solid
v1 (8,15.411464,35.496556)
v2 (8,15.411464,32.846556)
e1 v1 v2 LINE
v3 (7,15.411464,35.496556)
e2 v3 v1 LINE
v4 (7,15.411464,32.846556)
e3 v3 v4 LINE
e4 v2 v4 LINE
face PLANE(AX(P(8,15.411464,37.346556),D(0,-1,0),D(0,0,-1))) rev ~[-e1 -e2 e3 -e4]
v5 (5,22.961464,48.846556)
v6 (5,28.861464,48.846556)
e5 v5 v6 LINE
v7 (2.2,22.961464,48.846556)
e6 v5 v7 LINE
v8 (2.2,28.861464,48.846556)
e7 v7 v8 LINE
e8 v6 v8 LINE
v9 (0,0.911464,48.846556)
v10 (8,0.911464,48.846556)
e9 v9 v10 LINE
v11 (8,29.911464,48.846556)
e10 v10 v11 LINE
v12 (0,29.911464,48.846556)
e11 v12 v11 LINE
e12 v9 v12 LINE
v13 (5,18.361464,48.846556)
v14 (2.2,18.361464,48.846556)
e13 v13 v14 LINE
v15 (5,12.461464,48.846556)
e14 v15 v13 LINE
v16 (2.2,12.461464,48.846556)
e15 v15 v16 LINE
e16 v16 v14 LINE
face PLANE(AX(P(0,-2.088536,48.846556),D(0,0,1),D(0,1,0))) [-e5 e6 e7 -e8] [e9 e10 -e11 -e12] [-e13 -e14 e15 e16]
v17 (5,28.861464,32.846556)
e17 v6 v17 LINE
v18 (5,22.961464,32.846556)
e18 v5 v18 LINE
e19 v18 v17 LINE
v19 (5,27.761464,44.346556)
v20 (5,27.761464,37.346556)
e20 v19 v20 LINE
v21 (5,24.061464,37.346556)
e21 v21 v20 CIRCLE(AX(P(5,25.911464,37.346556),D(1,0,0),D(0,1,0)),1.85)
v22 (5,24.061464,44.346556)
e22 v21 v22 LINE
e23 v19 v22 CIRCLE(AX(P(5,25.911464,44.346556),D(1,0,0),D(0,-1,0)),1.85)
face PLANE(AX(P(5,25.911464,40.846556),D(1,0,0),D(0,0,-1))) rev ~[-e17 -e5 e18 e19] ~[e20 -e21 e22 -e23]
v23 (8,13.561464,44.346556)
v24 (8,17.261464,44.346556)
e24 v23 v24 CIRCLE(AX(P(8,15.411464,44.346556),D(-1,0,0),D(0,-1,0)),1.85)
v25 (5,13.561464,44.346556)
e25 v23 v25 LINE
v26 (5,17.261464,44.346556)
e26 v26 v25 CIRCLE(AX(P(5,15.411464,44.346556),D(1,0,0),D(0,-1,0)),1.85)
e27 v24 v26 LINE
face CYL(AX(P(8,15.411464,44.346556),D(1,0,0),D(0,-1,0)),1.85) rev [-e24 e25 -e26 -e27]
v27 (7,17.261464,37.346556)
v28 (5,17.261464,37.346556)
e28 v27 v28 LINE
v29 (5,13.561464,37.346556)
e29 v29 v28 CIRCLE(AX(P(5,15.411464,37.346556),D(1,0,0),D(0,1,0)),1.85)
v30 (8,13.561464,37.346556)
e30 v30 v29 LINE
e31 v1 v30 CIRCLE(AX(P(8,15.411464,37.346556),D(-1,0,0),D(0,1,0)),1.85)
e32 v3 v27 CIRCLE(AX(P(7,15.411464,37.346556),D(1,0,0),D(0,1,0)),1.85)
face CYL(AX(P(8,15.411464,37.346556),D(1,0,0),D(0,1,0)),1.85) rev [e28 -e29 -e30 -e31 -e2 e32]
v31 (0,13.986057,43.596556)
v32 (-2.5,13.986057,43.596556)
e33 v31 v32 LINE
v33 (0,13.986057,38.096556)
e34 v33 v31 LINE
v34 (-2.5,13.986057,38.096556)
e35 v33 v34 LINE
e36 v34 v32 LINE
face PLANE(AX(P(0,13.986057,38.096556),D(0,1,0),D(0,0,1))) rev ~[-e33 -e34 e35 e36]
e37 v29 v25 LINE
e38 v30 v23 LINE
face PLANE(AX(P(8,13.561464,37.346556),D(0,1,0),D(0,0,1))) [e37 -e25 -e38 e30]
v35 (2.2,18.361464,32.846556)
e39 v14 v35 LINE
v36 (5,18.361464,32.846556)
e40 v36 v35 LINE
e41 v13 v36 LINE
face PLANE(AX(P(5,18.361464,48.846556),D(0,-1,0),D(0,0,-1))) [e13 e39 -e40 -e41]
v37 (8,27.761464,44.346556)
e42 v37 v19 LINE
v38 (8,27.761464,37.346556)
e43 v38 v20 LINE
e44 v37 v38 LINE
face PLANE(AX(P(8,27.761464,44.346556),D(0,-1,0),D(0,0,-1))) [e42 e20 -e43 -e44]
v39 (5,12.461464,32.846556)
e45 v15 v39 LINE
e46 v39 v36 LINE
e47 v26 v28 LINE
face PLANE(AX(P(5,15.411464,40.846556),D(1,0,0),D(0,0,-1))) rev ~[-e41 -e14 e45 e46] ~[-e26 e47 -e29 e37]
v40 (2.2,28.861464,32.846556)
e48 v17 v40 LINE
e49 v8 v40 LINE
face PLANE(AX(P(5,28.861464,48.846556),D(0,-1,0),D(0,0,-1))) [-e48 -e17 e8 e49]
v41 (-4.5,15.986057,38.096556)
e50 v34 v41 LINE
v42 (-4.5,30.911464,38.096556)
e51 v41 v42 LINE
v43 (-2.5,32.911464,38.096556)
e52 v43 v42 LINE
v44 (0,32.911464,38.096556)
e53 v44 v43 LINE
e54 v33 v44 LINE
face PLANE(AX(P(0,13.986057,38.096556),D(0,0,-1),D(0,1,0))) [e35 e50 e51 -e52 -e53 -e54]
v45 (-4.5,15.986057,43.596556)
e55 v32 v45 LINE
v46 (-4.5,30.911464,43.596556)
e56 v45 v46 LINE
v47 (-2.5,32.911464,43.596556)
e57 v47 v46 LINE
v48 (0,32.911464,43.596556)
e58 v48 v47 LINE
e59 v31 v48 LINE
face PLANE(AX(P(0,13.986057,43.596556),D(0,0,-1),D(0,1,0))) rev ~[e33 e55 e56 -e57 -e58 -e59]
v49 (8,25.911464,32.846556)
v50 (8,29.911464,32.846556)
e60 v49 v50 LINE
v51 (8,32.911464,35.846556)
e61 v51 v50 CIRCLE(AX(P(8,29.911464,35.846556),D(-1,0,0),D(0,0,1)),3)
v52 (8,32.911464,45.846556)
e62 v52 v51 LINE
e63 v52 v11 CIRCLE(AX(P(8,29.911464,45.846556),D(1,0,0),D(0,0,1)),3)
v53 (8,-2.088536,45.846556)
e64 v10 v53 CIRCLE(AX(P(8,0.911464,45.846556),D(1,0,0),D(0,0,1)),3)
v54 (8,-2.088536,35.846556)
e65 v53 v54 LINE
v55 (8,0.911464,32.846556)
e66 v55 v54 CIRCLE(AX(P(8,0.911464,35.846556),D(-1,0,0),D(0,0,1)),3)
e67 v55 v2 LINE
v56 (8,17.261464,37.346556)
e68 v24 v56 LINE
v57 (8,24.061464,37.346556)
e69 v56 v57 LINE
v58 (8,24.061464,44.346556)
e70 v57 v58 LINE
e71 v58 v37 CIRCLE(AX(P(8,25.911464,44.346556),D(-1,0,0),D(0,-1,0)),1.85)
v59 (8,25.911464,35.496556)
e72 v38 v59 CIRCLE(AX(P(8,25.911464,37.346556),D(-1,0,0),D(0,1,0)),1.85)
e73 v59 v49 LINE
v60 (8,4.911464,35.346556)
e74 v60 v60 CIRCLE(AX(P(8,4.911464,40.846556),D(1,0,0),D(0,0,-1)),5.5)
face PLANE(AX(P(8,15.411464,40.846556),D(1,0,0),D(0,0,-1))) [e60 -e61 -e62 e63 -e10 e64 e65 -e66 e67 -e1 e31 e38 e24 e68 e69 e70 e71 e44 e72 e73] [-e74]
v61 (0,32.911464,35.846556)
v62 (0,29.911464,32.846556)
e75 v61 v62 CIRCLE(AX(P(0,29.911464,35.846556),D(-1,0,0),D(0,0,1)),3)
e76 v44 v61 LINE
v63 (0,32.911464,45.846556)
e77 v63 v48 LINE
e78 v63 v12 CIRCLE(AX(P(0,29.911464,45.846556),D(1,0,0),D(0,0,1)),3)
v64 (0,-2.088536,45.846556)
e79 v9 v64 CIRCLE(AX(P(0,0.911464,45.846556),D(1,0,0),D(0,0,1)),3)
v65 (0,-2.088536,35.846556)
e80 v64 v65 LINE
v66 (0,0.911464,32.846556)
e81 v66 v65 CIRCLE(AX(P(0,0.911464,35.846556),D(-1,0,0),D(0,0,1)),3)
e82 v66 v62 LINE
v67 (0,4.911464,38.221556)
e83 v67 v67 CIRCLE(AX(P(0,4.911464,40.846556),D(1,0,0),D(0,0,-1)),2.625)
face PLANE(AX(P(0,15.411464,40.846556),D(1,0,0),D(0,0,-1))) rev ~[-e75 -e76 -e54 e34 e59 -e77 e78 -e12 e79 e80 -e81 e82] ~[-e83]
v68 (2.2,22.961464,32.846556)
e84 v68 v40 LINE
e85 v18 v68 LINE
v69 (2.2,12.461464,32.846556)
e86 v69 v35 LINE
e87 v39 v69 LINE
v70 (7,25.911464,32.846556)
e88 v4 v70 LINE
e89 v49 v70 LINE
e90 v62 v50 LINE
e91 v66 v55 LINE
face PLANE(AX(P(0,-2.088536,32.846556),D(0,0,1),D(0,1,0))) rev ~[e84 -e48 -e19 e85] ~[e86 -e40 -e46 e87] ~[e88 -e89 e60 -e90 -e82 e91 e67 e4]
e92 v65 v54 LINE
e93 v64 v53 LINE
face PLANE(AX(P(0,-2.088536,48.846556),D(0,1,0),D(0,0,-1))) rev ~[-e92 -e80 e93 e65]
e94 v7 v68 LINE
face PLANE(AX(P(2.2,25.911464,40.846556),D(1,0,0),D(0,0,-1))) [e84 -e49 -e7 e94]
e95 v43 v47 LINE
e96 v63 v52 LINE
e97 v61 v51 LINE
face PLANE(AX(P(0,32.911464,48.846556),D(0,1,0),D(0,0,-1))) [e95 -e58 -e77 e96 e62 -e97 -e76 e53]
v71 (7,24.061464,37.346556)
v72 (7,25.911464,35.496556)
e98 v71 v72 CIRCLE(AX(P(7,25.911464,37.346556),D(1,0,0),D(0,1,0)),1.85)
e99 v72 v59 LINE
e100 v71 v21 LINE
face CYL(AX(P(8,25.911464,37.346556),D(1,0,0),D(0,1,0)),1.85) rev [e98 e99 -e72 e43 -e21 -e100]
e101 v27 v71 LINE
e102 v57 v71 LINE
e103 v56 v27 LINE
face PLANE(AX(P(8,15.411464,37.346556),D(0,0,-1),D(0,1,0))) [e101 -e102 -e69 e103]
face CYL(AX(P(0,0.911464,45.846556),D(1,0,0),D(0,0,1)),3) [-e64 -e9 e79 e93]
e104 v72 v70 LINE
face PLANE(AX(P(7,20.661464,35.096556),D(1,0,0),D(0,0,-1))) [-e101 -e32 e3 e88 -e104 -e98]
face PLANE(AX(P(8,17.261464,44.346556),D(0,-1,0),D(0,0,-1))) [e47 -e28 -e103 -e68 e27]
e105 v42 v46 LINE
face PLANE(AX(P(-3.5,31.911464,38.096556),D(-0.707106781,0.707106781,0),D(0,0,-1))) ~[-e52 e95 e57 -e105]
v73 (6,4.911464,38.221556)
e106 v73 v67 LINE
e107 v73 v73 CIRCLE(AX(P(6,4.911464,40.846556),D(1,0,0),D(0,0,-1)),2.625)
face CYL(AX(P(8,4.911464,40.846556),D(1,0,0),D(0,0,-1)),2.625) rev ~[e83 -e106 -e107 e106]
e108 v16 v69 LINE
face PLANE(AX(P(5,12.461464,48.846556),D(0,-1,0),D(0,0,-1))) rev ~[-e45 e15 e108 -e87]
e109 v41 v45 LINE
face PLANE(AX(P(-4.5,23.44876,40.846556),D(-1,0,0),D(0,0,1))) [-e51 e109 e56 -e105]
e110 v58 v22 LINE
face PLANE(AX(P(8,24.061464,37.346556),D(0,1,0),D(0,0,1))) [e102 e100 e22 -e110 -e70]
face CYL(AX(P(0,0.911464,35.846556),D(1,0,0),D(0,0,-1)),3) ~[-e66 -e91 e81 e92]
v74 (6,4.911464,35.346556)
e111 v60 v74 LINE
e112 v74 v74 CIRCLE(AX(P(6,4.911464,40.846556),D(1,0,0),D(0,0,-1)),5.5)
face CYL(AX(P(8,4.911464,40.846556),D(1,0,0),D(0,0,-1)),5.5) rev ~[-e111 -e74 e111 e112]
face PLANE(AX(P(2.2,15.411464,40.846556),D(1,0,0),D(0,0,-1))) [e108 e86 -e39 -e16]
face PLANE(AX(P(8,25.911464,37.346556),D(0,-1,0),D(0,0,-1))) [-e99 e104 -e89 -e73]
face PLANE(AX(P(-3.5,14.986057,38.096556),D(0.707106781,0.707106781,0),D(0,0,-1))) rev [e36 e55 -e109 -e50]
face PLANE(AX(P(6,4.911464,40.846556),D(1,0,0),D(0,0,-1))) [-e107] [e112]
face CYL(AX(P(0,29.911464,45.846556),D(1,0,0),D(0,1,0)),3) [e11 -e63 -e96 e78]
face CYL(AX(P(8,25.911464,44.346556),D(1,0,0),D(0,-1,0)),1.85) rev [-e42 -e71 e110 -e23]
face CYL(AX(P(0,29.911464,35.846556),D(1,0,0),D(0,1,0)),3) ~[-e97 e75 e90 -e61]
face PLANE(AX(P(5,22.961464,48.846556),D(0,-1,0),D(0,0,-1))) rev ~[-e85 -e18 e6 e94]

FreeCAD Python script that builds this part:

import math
import FreeCAD as App
import Part
import Sketcher

V = App.Vector


def edges_at(feature, points):
    """Names of the edges that pass closest to the given points."""
    edges = feature.Shape.Edges
    near = lambda p: min(range(len(edges)), key=lambda i: edges[i].distToShape(Part.Vertex(*p))[0])
    return sorted({f"Edge{near(p) + 1}" for p in points})


def add_polygon(sketch, points):
    """Adds a closed chain of lines whose ends are joined by coincident constraints."""
    first, n = sketch.GeometryCount, len(points)
    for a, b in zip(points, points[1:] + points[:1]):
        sketch.addGeometry(Part.LineSegment(App.Vector(*a, 0), App.Vector(*b, 0)), False)
    for i in range(n):
        sketch.addConstraint(Sketcher.Constraint("Coincident", first + i, 2, first + (i + 1) % n, 1))

doc = App.newDocument("Part")
body = doc.addObject("PartDesign::Body", "Body")

sketch1 = doc.addObject("Sketcher::SketchObject", "Sketch")
body.addObject(sketch1)
sketch1.AttachmentSupport = (doc.YZ_Plane, [""])
sketch1.MapMode = "FlatFace"
add_polygon(sketch1, [(33, 49), (-2, 49), (-2, 33), (33, 33)])
sketch1.addConstraint(Sketcher.Constraint("Horizontal", 0))
sketch1.addConstraint(Sketcher.Constraint("Vertical", 1))
sketch1.addConstraint(Sketcher.Constraint("Horizontal", 2))
sketch1.addConstraint(Sketcher.Constraint("Vertical", 3))
sketch1.addConstraint(Sketcher.Constraint("DistanceX", 0, 2, 0, 1, 35.0))
sketch1.addConstraint(Sketcher.Constraint("DistanceY", 1, 2, 1, 1, 16.0))
sketch1.addConstraint(Sketcher.Constraint("DistanceX", 0, 2, -1, 1, 2.088536))
sketch1.addConstraint(Sketcher.Constraint("DistanceY", -1, 1, 0, 2, 48.846556))
pad1 = doc.addObject("PartDesign::Pad", "Pad")
body.addObject(pad1)
pad1.Profile = sketch1
pad1.Length = 8

sketch2 = doc.addObject("Sketcher::SketchObject", "Sketch001")
body.addObject(sketch2)
sketch2.AttachmentSupport = (doc.YZ_Plane, [""])
sketch2.MapMode = "FlatFace"
add_polygon(sketch2, [(33, 38), (14, 38), (14, 44), (33, 44)])
sketch2.addConstraint(Sketcher.Constraint("Horizontal", 0))
sketch2.addConstraint(Sketcher.Constraint("Vertical", 1))
sketch2.addConstraint(Sketcher.Constraint("Horizontal", 2))
sketch2.addConstraint(Sketcher.Constraint("Vertical", 3))
sketch2.addConstraint(Sketcher.Constraint("DistanceY", 1, 1, 1, 2, 5.5))
sketch2.addConstraint(Sketcher.Constraint("DistanceX", 0, 2, 0, 1, 18.925407))
sketch2.addConstraint(Sketcher.Constraint("DistanceX", -1, 1, 0, 2, 13.986057))
sketch2.addConstraint(Sketcher.Constraint("DistanceY", -1, 1, 0, 2, 38.096556))
pad2 = doc.addObject("PartDesign::Pad", "Pad001")
body.addObject(pad2)
pad2.Profile = sketch2
pad2.Length = 4.5
pad2.Reversed = True
doc.recompute()

chamfer = doc.addObject("PartDesign::Chamfer", "Chamfer")
body.addObject(chamfer)
chamfer.Base = (pad2, edges_at(pad2, [(-4.5, 13.986, 40.847), (-4.5, 32.911, 40.847)]))
chamfer.Size = 2

sketch3 = doc.addObject("Sketcher::SketchObject", "Sketch002")
body.addObject(sketch3)
sketch3.AttachmentSupport = (doc.YZ_Plane, [""])
sketch3.MapMode = "FlatFace"
sketch3.AttachmentOffset = App.Placement(V(0, 0, 5), App.Rotation())
add_polygon(sketch3, [(29, 49), (23, 49), (23, 33), (29, 33)])
add_polygon(sketch3, [(18, 49), (12, 49), (12, 33), (18, 33)])
sketch3.addConstraint(Sketcher.Constraint("Horizontal", 0))
sketch3.addConstraint(Sketcher.Constraint("Vertical", 1))
sketch3.addConstraint(Sketcher.Constraint("Horizontal", 2))
sketch3.addConstraint(Sketcher.Constraint("Vertical", 3))
sketch3.addConstraint(Sketcher.Constraint("Horizontal", 4))
sketch3.addConstraint(Sketcher.Constraint("Vertical", 5))
sketch3.addConstraint(Sketcher.Constraint("Horizontal", 6))
sketch3.addConstraint(Sketcher.Constraint("Vertical", 7))
sketch3.addConstraint(Sketcher.Constraint("Horizontal", 3, 2, 4, 2))
sketch3.addConstraint(Sketcher.Constraint("Horizontal", 2, 2, 5, 2))
sketch3.addConstraint(Sketcher.Constraint("Equal", 2, 4))
sketch3.addConstraint(Sketcher.Constraint("DistanceY", 1, 2, 1, 1, 16.0))
sketch3.addConstraint(Sketcher.Constraint("DistanceX", 0, 2, 0, 1, 5.9))
sketch3.addConstraint(Sketcher.Constraint("DistanceX", 4, 2, 0, 2, 10.5))
sketch3.addConstraint(Sketcher.Constraint("DistanceX", -1, 1, 0, 2, 22.961464))
sketch3.addConstraint(Sketcher.Constraint("DistanceY", -1, 1, 0, 2, 48.846556))
pocket1 = doc.addObject("PartDesign::Pocket", "Pocket")
body.addObject(pocket1)
pocket1.Profile = sketch3
pocket1.Length = 2.8

sketch4 = doc.addObject("Sketcher::SketchObject", "Sketch003")
body.addObject(sketch4)
sketch4.AttachmentSupport = (doc.YZ_Plane, [""])
sketch4.MapMode = "FlatFace"
sketch4.AttachmentOffset = App.Placement(V(0, 0, 8), App.Rotation())
sketch4.addGeometry(Part.LineSegment(V(27.8, 37.3, 0), V(27.8, 44.3, 0)), False)
sketch4.addGeometry(Part.ArcOfCircle(Part.Circle(V(25.9, 44.3, 0), V(0, 0, 1), 1.9), math.radians(0), math.radians(180)), False)
sketch4.addGeometry(Part.LineSegment(V(24.1, 44.3, 0), V(24.1, 37.3, 0)), False)
sketch4.addGeometry(Part.ArcOfCircle(Part.Circle(V(25.9, 37.3, 0), V(0, 0, 1), 1.9), math.radians(180), math.radians(360)), False)
sketch4.addGeometry(Part.LineSegment(V(17.3, 37.3, 0), V(17.3, 44.3, 0)), False)
sketch4.addGeometry(Part.ArcOfCircle(Part.Circle(V(15.4, 44.3, 0), V(0, 0, 1), 1.9), math.radians(0), math.radians(180)), False)
sketch4.addGeometry(Part.LineSegment(V(13.6, 44.3, 0), V(13.6, 37.3, 0)), False)
sketch4.addGeometry(Part.ArcOfCircle(Part.Circle(V(15.4, 37.3, 0), V(0, 0, 1), 1.9), math.radians(180), math.radians(360)), False)
sketch4.addConstraint(Sketcher.Constraint("Tangent", 0, 2, 1, 1))
sketch4.addConstraint(Sketcher.Constraint("Tangent", 1, 2, 2, 1))
sketch4.addConstraint(Sketcher.Constraint("Tangent", 2, 2, 3, 1))
sketch4.addConstraint(Sketcher.Constraint("Tangent", 3, 2, 0, 1))
sketch4.addConstraint(Sketcher.Constraint("Tangent", 4, 2, 5, 1))
sketch4.addConstraint(Sketcher.Constraint("Tangent", 5, 2, 6, 1))
sketch4.addConstraint(Sketcher.Constraint("Tangent", 6, 2, 7, 1))
sketch4.addConstraint(Sketcher.Constraint("Tangent", 7, 2, 4, 1))
sketch4.addConstraint(Sketcher.Constraint("Vertical", 0))
sketch4.addConstraint(Sketcher.Constraint("Vertical", 2))
sketch4.addConstraint(Sketcher.Constraint("Vertical", 4))
sketch4.addConstraint(Sketcher.Constraint("Vertical", 6))
sketch4.addConstraint(Sketcher.Constraint("Equal", 3, 5))
sketch4.addConstraint(Sketcher.Constraint("Horizontal", 1, 3, 5, 3))
sketch4.addConstraint(Sketcher.Constraint("Horizontal", 3, 3, 7, 3))
sketch4.addConstraint(Sketcher.Constraint("DistanceY", 0, 1, 0, 2, 7.0))
sketch4.addConstraint(Sketcher.Constraint("Radius", 1, 1.85))
sketch4.addConstraint(Sketcher.Constraint("DistanceX", 5, 3, 1, 3, 10.5))
sketch4.addConstraint(Sketcher.Constraint("DistanceX", -1, 1, 1, 3, 25.911464))
sketch4.addConstraint(Sketcher.Constraint("DistanceY", -1, 1, 1, 3, 44.346556))
pocket2 = doc.addObject("PartDesign::Pocket", "Pocket001")
body.addObject(pocket2)
pocket2.Profile = sketch4
pocket2.Length = 5

sketch5 = doc.addObject("Sketcher::SketchObject", "Sketch004")
body.addObject(sketch5)
sketch5.AttachmentSupport = (doc.YZ_Plane, [""])
sketch5.MapMode = "FlatFace"
sketch5.AttachmentOffset = App.Placement(V(0, 0, 8), App.Rotation())
add_polygon(sketch5, [(25.9, 37.3), (15.4, 37.3), (15.4, 32.8), (25.9, 32.8)])
sketch5.addConstraint(Sketcher.Constraint("Horizontal", 0))
sketch5.addConstraint(Sketcher.Constraint("Vertical", 1))
sketch5.addConstraint(Sketcher.Constraint("Horizontal", 2))
sketch5.addConstraint(Sketcher.Constraint("Vertical", 3))
sketch5.addConstraint(Sketcher.Constraint("DistanceX", 0, 2, 0, 1, 10.5))
sketch5.addConstraint(Sketcher.Constraint("DistanceY", 1, 2, 1, 1, 4.5))
sketch5.addConstraint(Sketcher.Constraint("DistanceX", -1, 1, 0, 2, 15.411464))
sketch5.addConstraint(Sketcher.Constraint("DistanceY", -1, 1, 0, 2, 37.346556))
pocket3 = doc.addObject("PartDesign::Pocket", "Pocket002")
body.addObject(pocket3)
pocket3.Profile = sketch5
pocket3.Length = 1
doc.recompute()

fillet = doc.addObject("PartDesign::Fillet", "Fillet")
body.addObject(fillet)
fillet.Base = (pocket3, edges_at(pocket3, [
    (4, 32.911, 32.847),
    (4, 32.911, 48.847),
    (4, -2.089, 48.847),
    (4, -2.089, 32.847),
]))
fillet.Radius = 3

sketch6 = doc.addObject("Sketcher::SketchObject", "Sketch005")
body.addObject(sketch6)
sketch6.AttachmentSupport = (doc.YZ_Plane, [""])
sketch6.MapMode = "FlatFace"
sketch6.AttachmentOffset = App.Placement(V(0, 0, 8), App.Rotation())
sketch6.addGeometry(Part.Circle(V(4.9, 40.8, 0), V(0, 0, 1), 2.6), False)
sketch6.addConstraint(Sketcher.Constraint("Diameter", 0, 5.25))
sketch6.addConstraint(Sketcher.Constraint("DistanceX", -1, 1, 0, 3, 4.911464))
sketch6.addConstraint(Sketcher.Constraint("DistanceY", -1, 1, 0, 3, 40.846556))
pocket4 = doc.addObject("PartDesign::Pocket", "Pocket003")
body.addObject(pocket4)
pocket4.Profile = sketch6
pocket4.Length = 20

sketch7 = doc.addObject("Sketcher::SketchObject", "Sketch006")
body.addObject(sketch7)
sketch7.AttachmentSupport = (doc.YZ_Plane, [""])
sketch7.MapMode = "FlatFace"
sketch7.AttachmentOffset = App.Placement(V(0, 0, 8), App.Rotation())
sketch7.addGeometry(Part.Circle(V(5, 41, 0), V(0, 0, 1), 6), False)
sketch7.addConstraint(Sketcher.Constraint("Diameter", 0, 11.0))
sketch7.addConstraint(Sketcher.Constraint("DistanceX", -1, 1, 0, 3, 4.911464))
sketch7.addConstraint(Sketcher.Constraint("DistanceY", -1, 1, 0, 3, 40.846556))
pocket5 = doc.addObject("PartDesign::Pocket", "Pocket004")
body.addObject(pocket5)
pocket5.Profile = sketch7
pocket5.Length = 2

doc.recompute()
